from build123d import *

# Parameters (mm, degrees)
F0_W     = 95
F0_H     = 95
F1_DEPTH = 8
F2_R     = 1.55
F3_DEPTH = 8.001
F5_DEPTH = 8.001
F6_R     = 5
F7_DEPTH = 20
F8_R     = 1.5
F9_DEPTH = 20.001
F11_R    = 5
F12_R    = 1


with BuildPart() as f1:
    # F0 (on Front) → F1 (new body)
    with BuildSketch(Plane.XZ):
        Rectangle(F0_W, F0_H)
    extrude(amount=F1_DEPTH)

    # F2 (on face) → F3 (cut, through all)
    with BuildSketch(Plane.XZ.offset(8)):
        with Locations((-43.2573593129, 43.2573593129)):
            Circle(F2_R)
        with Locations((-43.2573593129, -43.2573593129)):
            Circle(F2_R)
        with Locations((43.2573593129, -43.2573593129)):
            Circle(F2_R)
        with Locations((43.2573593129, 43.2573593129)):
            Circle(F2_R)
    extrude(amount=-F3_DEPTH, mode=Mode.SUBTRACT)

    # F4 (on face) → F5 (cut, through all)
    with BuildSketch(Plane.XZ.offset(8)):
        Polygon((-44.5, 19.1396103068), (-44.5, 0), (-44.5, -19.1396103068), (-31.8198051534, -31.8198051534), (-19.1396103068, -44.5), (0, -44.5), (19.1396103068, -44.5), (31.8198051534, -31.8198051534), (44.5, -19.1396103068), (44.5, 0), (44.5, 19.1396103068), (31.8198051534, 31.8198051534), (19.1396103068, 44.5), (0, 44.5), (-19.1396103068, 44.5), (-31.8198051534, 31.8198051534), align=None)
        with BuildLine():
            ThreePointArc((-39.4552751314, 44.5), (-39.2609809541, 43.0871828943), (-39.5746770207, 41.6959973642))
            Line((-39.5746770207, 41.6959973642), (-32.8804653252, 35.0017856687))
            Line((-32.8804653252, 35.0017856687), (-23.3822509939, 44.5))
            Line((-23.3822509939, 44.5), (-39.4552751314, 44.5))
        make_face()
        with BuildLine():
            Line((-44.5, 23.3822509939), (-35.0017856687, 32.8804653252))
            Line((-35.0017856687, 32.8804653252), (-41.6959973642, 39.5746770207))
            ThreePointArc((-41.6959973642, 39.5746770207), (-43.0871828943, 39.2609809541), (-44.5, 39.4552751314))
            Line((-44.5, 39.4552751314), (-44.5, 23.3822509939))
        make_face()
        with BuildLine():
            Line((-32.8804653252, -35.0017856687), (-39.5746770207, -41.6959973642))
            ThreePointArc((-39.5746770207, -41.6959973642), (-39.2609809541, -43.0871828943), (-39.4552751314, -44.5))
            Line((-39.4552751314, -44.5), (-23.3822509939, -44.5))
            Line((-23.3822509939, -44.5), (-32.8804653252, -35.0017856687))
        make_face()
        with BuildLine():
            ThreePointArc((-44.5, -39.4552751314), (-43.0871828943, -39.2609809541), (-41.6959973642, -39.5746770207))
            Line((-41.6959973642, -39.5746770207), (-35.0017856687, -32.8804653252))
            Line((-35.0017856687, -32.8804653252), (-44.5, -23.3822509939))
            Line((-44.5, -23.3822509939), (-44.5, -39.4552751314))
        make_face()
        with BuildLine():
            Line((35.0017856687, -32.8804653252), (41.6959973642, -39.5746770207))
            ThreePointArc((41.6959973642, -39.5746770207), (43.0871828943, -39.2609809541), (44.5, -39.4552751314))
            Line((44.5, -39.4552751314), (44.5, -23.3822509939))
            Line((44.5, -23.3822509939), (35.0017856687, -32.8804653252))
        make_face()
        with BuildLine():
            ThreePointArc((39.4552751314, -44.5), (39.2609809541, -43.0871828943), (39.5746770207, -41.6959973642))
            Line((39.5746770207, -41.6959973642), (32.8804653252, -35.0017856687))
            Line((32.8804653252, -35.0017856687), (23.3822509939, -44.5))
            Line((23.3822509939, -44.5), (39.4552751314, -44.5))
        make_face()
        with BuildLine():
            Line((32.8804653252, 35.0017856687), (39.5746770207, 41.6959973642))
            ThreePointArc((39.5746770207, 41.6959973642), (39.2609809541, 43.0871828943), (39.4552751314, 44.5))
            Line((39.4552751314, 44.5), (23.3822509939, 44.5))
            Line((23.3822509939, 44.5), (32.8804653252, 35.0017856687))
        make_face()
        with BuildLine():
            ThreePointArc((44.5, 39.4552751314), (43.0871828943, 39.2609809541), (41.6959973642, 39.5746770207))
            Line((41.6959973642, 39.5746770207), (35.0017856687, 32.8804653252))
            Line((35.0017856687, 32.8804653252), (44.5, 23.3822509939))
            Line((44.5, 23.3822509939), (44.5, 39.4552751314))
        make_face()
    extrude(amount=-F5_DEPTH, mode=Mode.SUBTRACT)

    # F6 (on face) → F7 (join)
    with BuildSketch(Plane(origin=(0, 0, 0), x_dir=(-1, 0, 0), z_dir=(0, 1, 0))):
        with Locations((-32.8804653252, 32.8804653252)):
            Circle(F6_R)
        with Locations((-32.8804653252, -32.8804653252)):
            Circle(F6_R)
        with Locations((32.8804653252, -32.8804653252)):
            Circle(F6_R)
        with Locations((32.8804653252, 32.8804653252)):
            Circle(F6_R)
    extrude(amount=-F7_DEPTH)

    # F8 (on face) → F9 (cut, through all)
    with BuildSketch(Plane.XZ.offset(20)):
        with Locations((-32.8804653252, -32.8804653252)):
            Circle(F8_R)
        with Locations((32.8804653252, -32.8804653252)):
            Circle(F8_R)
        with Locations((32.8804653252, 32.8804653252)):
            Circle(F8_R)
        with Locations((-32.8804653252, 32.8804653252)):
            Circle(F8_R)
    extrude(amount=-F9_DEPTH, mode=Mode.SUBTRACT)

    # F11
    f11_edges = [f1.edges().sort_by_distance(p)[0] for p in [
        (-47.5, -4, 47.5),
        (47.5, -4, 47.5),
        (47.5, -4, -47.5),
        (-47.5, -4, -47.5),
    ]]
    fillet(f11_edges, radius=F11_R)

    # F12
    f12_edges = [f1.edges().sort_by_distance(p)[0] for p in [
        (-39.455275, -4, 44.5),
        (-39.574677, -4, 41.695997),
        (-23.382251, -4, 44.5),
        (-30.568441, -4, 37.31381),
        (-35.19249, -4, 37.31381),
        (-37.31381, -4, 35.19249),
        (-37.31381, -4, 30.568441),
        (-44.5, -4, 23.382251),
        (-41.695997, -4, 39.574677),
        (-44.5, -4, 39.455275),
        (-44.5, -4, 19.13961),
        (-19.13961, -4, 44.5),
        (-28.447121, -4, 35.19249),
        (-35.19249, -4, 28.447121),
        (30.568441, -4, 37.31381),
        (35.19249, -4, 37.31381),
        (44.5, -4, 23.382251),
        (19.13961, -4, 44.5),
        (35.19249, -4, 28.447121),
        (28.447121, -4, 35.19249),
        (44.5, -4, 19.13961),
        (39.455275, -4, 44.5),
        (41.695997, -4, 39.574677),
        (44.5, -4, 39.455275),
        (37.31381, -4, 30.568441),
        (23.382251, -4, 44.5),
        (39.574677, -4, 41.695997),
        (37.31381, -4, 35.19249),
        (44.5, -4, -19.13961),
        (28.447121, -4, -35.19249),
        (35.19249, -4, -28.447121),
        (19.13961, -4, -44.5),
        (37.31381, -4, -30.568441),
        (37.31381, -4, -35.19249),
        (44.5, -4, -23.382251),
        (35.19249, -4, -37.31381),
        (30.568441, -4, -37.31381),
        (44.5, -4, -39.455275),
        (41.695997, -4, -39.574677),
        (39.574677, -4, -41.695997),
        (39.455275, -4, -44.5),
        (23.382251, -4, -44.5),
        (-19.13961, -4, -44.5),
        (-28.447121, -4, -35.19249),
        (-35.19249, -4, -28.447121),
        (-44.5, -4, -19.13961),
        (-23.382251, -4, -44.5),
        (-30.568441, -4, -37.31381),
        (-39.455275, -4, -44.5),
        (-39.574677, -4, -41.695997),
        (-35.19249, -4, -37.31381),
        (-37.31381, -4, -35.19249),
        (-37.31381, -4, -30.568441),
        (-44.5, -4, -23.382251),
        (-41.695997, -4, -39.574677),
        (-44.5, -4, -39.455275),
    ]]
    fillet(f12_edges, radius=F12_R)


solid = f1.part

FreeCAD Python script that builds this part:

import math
import FreeCAD as App
import Part
import Sketcher

V = App.Vector
Q = App.Units.Quantity


def edges_at(feature, points):
    """Names of the edges that pass closest to the given points."""
    edges = feature.Shape.Edges
    near = lambda p: min(range(len(edges)), key=lambda i: edges[i].distToShape(Part.Vertex(*p))[0])
    return sorted({f"Edge{near(p) + 1}" for p in points})

doc = App.newDocument("Part")
body = doc.addObject("PartDesign::Body", "Body")

# Sketch on XZ plane
sketch1 = doc.addObject("Sketcher::SketchObject", "Sketch")
body.addObject(sketch1)
sketch1.AttachmentSupport = (doc.XZ_Plane, [""])
sketch1.MapMode = "FlatFace"
sketch1.addGeometry(Part.LineSegment(V(-48, 48, 0), V(-48, -48, 0)), False)
sketch1.addGeometry(Part.LineSegment(V(-48, -48, 0), V(48, -48, 0)), False)
sketch1.addGeometry(Part.LineSegment(V(48, -48, 0), V(48, 48, 0)), False)
sketch1.addGeometry(Part.LineSegment(V(48, 48, 0), V(-48, 48, 0)), False)
sketch1.addConstraint(Sketcher.Constraint("Coincident", 0, 2, 1, 1))
sketch1.addConstraint(Sketcher.Constraint("Coincident", 1, 2, 2, 1))
sketch1.addConstraint(Sketcher.Constraint("Coincident", 2, 2, 3, 1))
sketch1.addConstraint(Sketcher.Constraint("Coincident", 3, 2, 0, 1))
sketch1.addConstraint(Sketcher.Constraint("Vertical", 0))
sketch1.addConstraint(Sketcher.Constraint("Horizontal", 1))
sketch1.addConstraint(Sketcher.Constraint("Vertical", 2))
sketch1.addConstraint(Sketcher.Constraint("Horizontal", 3))
sketch1.addConstraint(Sketcher.Constraint("Symmetric", 0, 2, 2, 2, -1, 1))
sketch1.addConstraint(Sketcher.Constraint("Equal", 3, 0))
sketch1.addConstraint(Sketcher.Constraint("DistanceX", 1, 1, 1, 2, Q("95 mm")))
pad1 = doc.addObject("PartDesign::Pad", "Pad")
body.addObject(pad1)
pad1.Profile = sketch1
pad1.Length = 8

# Sketch on XZ plane
sketch2 = doc.addObject("Sketcher::SketchObject", "Sketch001")
body.addObject(sketch2)
sketch2.AttachmentSupport = (doc.XZ_Plane, [""])
sketch2.MapMode = "FlatFace"
sketch2.AttachmentOffset = App.Placement(V(0, 0, 8), App.Rotation())
sketch2.addGeometry(Part.Circle(V(-43.3, 43.3, 0), V(0, 0, 1), 1.6), False)
sketch2.addGeometry(Part.Circle(V(-43.3, -43.3, 0), V(0, 0, 1), 1.6), False)
sketch2.addGeometry(Part.Circle(V(43.3, -43.3, 0), V(0, 0, 1), 1.6), False)
sketch2.addGeometry(Part.Circle(V(43.3, 43.3, 0), V(0, 0, 1), 1.6), False)
sketch2.addConstraint(Sketcher.Constraint("Equal", 0, 1))
sketch2.addConstraint(Sketcher.Constraint("Equal", 1, 2))
sketch2.addConstraint(Sketcher.Constraint("Equal", 2, 3))
sketch2.addConstraint(Sketcher.Constraint("Symmetric", 0, 3, 2, 3, -1, 1))
sketch2.addConstraint(Sketcher.Constraint("Symmetric", 1, 3, 3, 3, -1, 1))
sketch2.addConstraint(Sketcher.Constraint("Symmetric", 1, 3, 2, 3, -2))
sketch2.addConstraint(Sketcher.Constraint("Diameter", 0, Q("3.1 mm")))
sketch2.addConstraint(Sketcher.Constraint("DistanceX", 0, 3, -1, 1, Q("43.257359 mm")))
sketch2.addConstraint(Sketcher.Constraint("DistanceY", -1, 1, 0, 3, Q("43.257359 mm")))
pocket1 = doc.addObject("PartDesign::Pocket", "Pocket")
body.addObject(pocket1)
pocket1.Profile = sketch2
pocket1.Type = "ThroughAll"

# Sketch on XZ plane
sketch3 = doc.addObject("Sketcher::SketchObject", "Sketch002")
body.addObject(sketch3)
sketch3.AttachmentSupport = (doc.XZ_Plane, [""])
sketch3.MapMode = "FlatFace"
sketch3.AttachmentOffset = App.Placement(V(0, 0, 8), App.Rotation())
sketch3.addGeometry(Part.LineSegment(V(-44.5, 19.1, 0), V(-44.5, -19.1, 0)), False)
sketch3.addGeometry(Part.LineSegment(V(-44.5, -19.1, 0), V(-19.1, -44.5, 0)), False)
sketch3.addGeometry(Part.LineSegment(V(-19.1, -44.5, 0), V(19.1, -44.5, 0)), False)
sketch3.addGeometry(Part.LineSegment(V(19.1, -44.5, 0), V(44.5, -19.1, 0)), False)
sketch3.addGeometry(Part.LineSegment(V(44.5, -19.1, 0), V(44.5, 19.1, 0)), False)
sketch3.addGeometry(Part.LineSegment(V(44.5, 19.1, 0), V(19.1, 44.5, 0)), False)
sketch3.addGeometry(Part.LineSegment(V(19.1, 44.5, 0), V(-19.1, 44.5, 0)), False)
sketch3.addGeometry(Part.LineSegment(V(-19.1, 44.5, 0), V(-44.5, 19.1, 0)), False)
sketch3.addGeometry(Part.ArcOfCircle(Part.Circle(V(-43.3, 43.3, 0), V(0, 0, 1), 4), math.radians(-23), math.radians(18)), False)
sketch3.addGeometry(Part.LineSegment(V(-39.6, 41.7, 0), V(-32.9, 35, 0)), False)
sketch3.addGeometry(Part.LineSegment(V(-32.9, 35, 0), V(-23.4, 44.5, 0)), False)
sketch3.addGeometry(Part.LineSegment(V(-23.4, 44.5, 0), V(-39.5, 44.5, 0)), False)
sketch3.addGeometry(Part.LineSegment(V(-44.5, 23.4, 0), V(-35, 32.9, 0)), False)
sketch3.addGeometry(Part.LineSegment(V(-35, 32.9, 0), V(-41.7, 39.6, 0)), False)
sketch3.addGeometry(Part.ArcOfCircle(Part.Circle(V(-43.3, 43.3, 0), V(0, 0, 1), 4), math.radians(-108), math.radians(-67)), False)
sketch3.addGeometry(Part.LineSegment(V(-44.5, 39.5, 0), V(-44.5, 23.4, 0)), False)
sketch3.addGeometry(Part.LineSegment(V(-32.9, -35, 0), V(-39.6, -41.7, 0)), False)
sketch3.addGeometry(Part.ArcOfCircle(Part.Circle(V(-43.3, -43.3, 0), V(0, 0, 1), 4), math.radians(-18), math.radians(23)), False)
sketch3.addGeometry(Part.LineSegment(V(-39.5, -44.5, 0), V(-23.4, -44.5, 0)), False)
sketch3.addGeometry(Part.LineSegment(V(-23.4, -44.5, 0), V(-32.9, -35, 0)), False)
sketch3.addGeometry(Part.ArcOfCircle(Part.Circle(V(-43.3, -43.3, 0), V(0, 0, 1), 4), math.radians(67), math.radians(108)), False)
sketch3.addGeometry(Part.LineSegment(V(-41.7, -39.6, 0), V(-35, -32.9, 0)), False)
sketch3.addGeometry(Part.LineSegment(V(-35, -32.9, 0), V(-44.5, -23.4, 0)), False)
sketch3.addGeometry(Part.LineSegment(V(-44.5, -23.4, 0), V(-44.5, -39.5, 0)), False)
sketch3.addGeometry(Part.LineSegment(V(35, -32.9, 0), V(41.7, -39.6, 0)), False)
sketch3.addGeometry(Part.ArcOfCircle(Part.Circle(V(43.3, -43.3, 0), V(0, 0, 1), 4), math.radians(72), math.radians(113)), False)
sketch3.addGeometry(Part.LineSegment(V(44.5, -39.5, 0), V(44.5, -23.4, 0)), False)
sketch3.addGeometry(Part.LineSegment(V(44.5, -23.4, 0), V(35, -32.9, 0)), False)
sketch3.addGeometry(Part.ArcOfCircle(Part.Circle(V(43.3, -43.3, 0), V(0, 0, 1), 4), math.radians(157), math.radians(198)), False)
sketch3.addGeometry(Part.LineSegment(V(39.6, -41.7, 0), V(32.9, -35, 0)), False)
sketch3.addGeometry(Part.LineSegment(V(32.9, -35, 0), V(23.4, -44.5, 0)), False)
sketch3.addGeometry(Part.LineSegment(V(23.4, -44.5, 0), V(39.5, -44.5, 0)), False)
sketch3.addGeometry(Part.LineSegment(V(32.9, 35, 0), V(39.6, 41.7, 0)), False)
sketch3.addGeometry(Part.ArcOfCircle(Part.Circle(V(43.3, 43.3, 0), V(0, 0, 1), 4), math.radians(162), math.radians(203)), False)
sketch3.addGeometry(Part.LineSegment(V(39.5, 44.5, 0), V(23.4, 44.5, 0)), False)
sketch3.addGeometry(Part.LineSegment(V(23.4, 44.5, 0), V(32.9, 35, 0)), False)
sketch3.addGeometry(Part.ArcOfCircle(Part.Circle(V(43.3, 43.3, 0), V(0, 0, 1), 4), math.radians(-113), math.radians(-72)), False)
sketch3.addGeometry(Part.LineSegment(V(41.7, 39.6, 0), V(35, 32.9, 0)), False)
sketch3.addGeometry(Part.LineSegment(V(35, 32.9, 0), V(44.5, 23.4, 0)), False)
sketch3.addGeometry(Part.LineSegment(V(44.5, 23.4, 0), V(44.5, 39.5, 0)), False)
sketch3.addConstraint(Sketcher.Constraint("Coincident", 0, 2, 1, 1))
sketch3.addConstraint(Sketcher.Constraint("Coincident", 1, 2, 2, 1))
sketch3.addConstraint(Sketcher.Constraint("Coincident", 2, 2, 3, 1))
sketch3.addConstraint(Sketcher.Constraint("Coincident", 3, 2, 4, 1))
sketch3.addConstraint(Sketcher.Constraint("Coincident", 4, 2, 5, 1))
sketch3.addConstraint(Sketcher.Constraint("Coincident", 5, 2, 6, 1))
sketch3.addConstraint(Sketcher.Constraint("Coincident", 6, 2, 7, 1))
sketch3.addConstraint(Sketcher.Constraint("Coincident", 7, 2, 0, 1))
sketch3.addConstraint(Sketcher.Constraint("Coincident", 8, 1, 9, 1))
sketch3.addConstraint(Sketcher.Constraint("Coincident", 9, 2, 10, 1))
sketch3.addConstraint(Sketcher.Constraint("Coincident", 10, 2, 11, 1))
sketch3.addConstraint(Sketcher.Constraint("Coincident", 11, 2, 8, 2))
sketch3.addConstraint(Sketcher.Constraint("Coincident", 12, 2, 13, 1))
sketch3.addConstraint(Sketcher.Constraint("Coincident", 13, 2, 14, 2))
sketch3.addConstraint(Sketcher.Constraint("Coincident", 14, 1, 15, 1))
sketch3.addConstraint(Sketcher.Constraint("Coincident", 15, 2, 12, 1))
sketch3.addConstraint(Sketcher.Constraint("Coincident", 16, 2, 17, 2))
sketch3.addConstraint(Sketcher.Constraint("Coincident", 17, 1, 18, 1))
sketch3.addConstraint(Sketcher.Constraint("Coincident", 18, 2, 19, 1))
sketch3.addConstraint(Sketcher.Constraint("Coincident", 19, 2, 16, 1))
sketch3.addConstraint(Sketcher.Constraint("Coincident", 20, 1, 21, 1))
sketch3.addConstraint(Sketcher.Constraint("Coincident", 21, 2, 22, 1))
sketch3.addConstraint(Sketcher.Constraint("Coincident", 22, 2, 23, 1))
sketch3.addConstraint(Sketcher.Constraint("Coincident", 23, 2, 20, 2))
sketch3.addConstraint(Sketcher.Constraint("Coincident", 24, 2, 25, 2))
sketch3.addConstraint(Sketcher.Constraint("Coincident", 25, 1, 26, 1))
sketch3.addConstraint(Sketcher.Constraint("Coincident", 26, 2, 27, 1))
sketch3.addConstraint(Sketcher.Constraint("Coincident", 27, 2, 24, 1))
sketch3.addConstraint(Sketcher.Constraint("Coincident", 28, 1, 29, 1))
sketch3.addConstraint(Sketcher.Constraint("Coincident", 29, 2, 30, 1))
sketch3.addConstraint(Sketcher.Constraint("Coincident", 30, 2, 31, 1))
sketch3.addConstraint(Sketcher.Constraint("Coincident", 31, 2, 28, 2))
sketch3.addConstraint(Sketcher.Constraint("Coincident", 32, 2, 33, 2))
sketch3.addConstraint(Sketcher.Constraint("Coincident", 33, 1, 34, 1))
sketch3.addConstraint(Sketcher.Constraint("Coincident", 34, 2, 35, 1))
sketch3.addConstraint(Sketcher.Constraint("Coincident", 35, 2, 32, 1))
sketch3.addConstraint(Sketcher.Constraint("Coincident", 36, 1, 37, 1))
sketch3.addConstraint(Sketcher.Constraint("Coincident", 37, 2, 38, 1))
sketch3.addConstraint(Sketcher.Constraint("Coincident", 38, 2, 39, 1))
sketch3.addConstraint(Sketcher.Constraint("Coincident", 39, 2, 36, 2))
sketch3.addConstraint(Sketcher.Constraint("Vertical", 0))
sketch3.addConstraint(Sketcher.Constraint("Horizontal", 2))
sketch3.addConstraint(Sketcher.Constraint("Vertical", 4))
sketch3.addConstraint(Sketcher.Constraint("Horizontal", 6))
sketch3.addConstraint(Sketcher.Constraint("Horizontal", 11))
sketch3.addConstraint(Sketcher.Constraint("Vertical", 15))
sketch3.addConstraint(Sketcher.Constraint("Horizontal", 18))
sketch3.addConstraint(Sketcher.Constraint("Vertical", 23))
sketch3.addConstraint(Sketcher.Constraint("Vertical", 26))
sketch3.addConstraint(Sketcher.Constraint("Horizontal", 31))
sketch3.addConstraint(Sketcher.Constraint("Horizontal", 34))
sketch3.addConstraint(Sketcher.Constraint("Vertical", 39))
sketch3.addConstraint(Sketcher.Constraint("Coincident", 14, 3, 8, 3))
sketch3.addConstraint(Sketcher.Constraint("Coincident", 20, 3, 17, 3))
sketch3.addConstraint(Sketcher.Constraint("Coincident", 28, 3, 25, 3))
sketch3.addConstraint(Sketcher.Constraint("Coincident", 36, 3, 33, 3))
sketch3.addConstraint(Sketcher.Constraint("Equal", 8, 14))
sketch3.addConstraint(Sketcher.Constraint("Equal", 14, 17))
sketch3.addConstraint(Sketcher.Constraint("Equal", 17, 20))
sketch3.addConstraint(Sketcher.Constraint("Equal", 20, 25))
sketch3.addConstraint(Sketcher.Constraint("Equal", 25, 28))
sketch3.addConstraint(Sketcher.Constraint("Equal", 28, 33))
sketch3.addConstraint(Sketcher.Constraint("Equal", 33, 36))
sketch3.addConstraint(Sketcher.Constraint("Symmetric", 8, 3, 25, 3, -1, 1))
sketch3.addConstraint(Sketcher.Constraint("Symmetric", 17, 3, 33, 3, -1, 1))
sketch3.addConstraint(Sketcher.Constraint("Symmetric", 0, 2, 4, 2, -1, 1))
sketch3.addConstraint(Sketcher.Constraint("Symmetric", 1, 2, 5, 2, -1, 1))
sketch3.addConstraint(Sketcher.Constraint("Symmetric", 15, 2, 26, 2, -1, 1))
sketch3.addConstraint(Sketcher.Constraint("Symmetric", 12, 2, 27, 2, -1, 1))
sketch3.addConstraint(Sketcher.Constraint("Symmetric", 9, 2, 29, 2, -1, 1))
sketch3.addConstraint(Sketcher.Constraint("Symmetric", 10, 2, 30, 2, -1, 1))
sketch3.addConstraint(Sketcher.Constraint("Symmetric", 18, 2, 34, 2, -1, 1))
sketch3.addConstraint(Sketcher.Constraint("Symmetric", 19, 2, 35, 2, -1, 1))
sketch3.addConstraint(Sketcher.Constraint("Symmetric", 21, 2, 37, 2, -1, 1))
sketch3.addConstraint(Sketcher.Constraint("Symmetric", 22, 2, 38, 2, -1, 1))
sketch3.addConstraint(Sketcher.Constraint("Symmetric", 17, 3, 25, 3, -2))
sketch3.addConstraint(Sketcher.Constraint("Symmetric", 22, 2, 26, 2, -2))
sketch3.addConstraint(Sketcher.Constraint("Symmetric", 21, 2, 27, 2, -2))
sketch3.addConstraint(Sketcher.Constraint("Symmetric", 19, 2, 29, 2, -2))
sketch3.addConstraint(Sketcher.Constraint("Symmetric", 18, 2, 30, 2, -2))
sketch3.addConstraint(Sketcher.Constraint("Perpendicular", 1, 3))
sketch3.addConstraint(Sketcher.Constraint("Perpendicular", 5, 7))
sketch3.addConstraint(Sketcher.Constraint("Perpendicular", 7, 9))
sketch3.addConstraint(Sketcher.Constraint("Perpendicular", 9, 10))
sketch3.addConstraint(Sketcher.Constraint("Parallel", 10, 12))
sketch3.addConstraint(Sketcher.Constraint("Perpendicular", 12, 13))
sketch3.addConstraint(Sketcher.Constraint("Perpendicular", 13, 16))
sketch3.addConstraint(Sketcher.Constraint("Perpendicular", 16, 19))
sketch3.addConstraint(Sketcher.Constraint("Perpendicular", 19, 21))
sketch3.addConstraint(Sketcher.Constraint("Parallel", 22, 24))
sketch3.addConstraint(Sketcher.Constraint("Perpendicular", 27, 29))
sketch3.addConstraint(Sketcher.Constraint("Parallel", 30, 32))
sketch3.addConstraint(Sketcher.Constraint("Perpendicular", 35, 37))
sketch3.addConstraint(Sketcher.Constraint("Horizontal", 0, 2, 3, 2))
sketch3.addConstraint(Sketcher.Constraint("Horizontal", 4, 2, 7, 2))
sketch3.addConstraint(Sketcher.Constraint("Horizontal", 6, 2, 10, 2))
sketch3.addConstraint(Sketcher.Constraint("Vertical", 7, 2, 14, 1))
sketch3.addConstraint(Sketcher.Constraint("Equal", 6, 0))
sketch3.addConstraint(Sketcher.Constraint("Equal", 34, 15))
sketch3.addConstraint(Sketcher.Constraint("Equal", 10, 12))
sketch3.addConstraint(Sketcher.Constraint("Equal", 9, 13))
sketch3.addConstraint(Sketcher.Constraint("Radius", 8, Q("4 mm")))
sketch3.addConstraint(Sketcher.Constraint("DistanceX", 0, 2, -1, 1, Q("44.5 mm")))
sketch3.addConstraint(Sketcher.Constraint("DistanceX", 2, 1, 2, 2, Q("38.279221 mm")))
sketch3.addConstraint(Sketcher.Constraint("DistanceX", 8, 1, 11, 2, Q("0.119402 mm")))
sketch3.addConstraint(Sketcher.Constraint("DistanceX", 11, 2, 11, 1, Q("16.073024 mm")))
sketch3.addConstraint(Sketcher.Constraint("DistanceX", 8, 3, -1, 1, Q("43.257359 mm")))
pocket2 = doc.addObject("PartDesign::Pocket", "Pocket001")
body.addObject(pocket2)
pocket2.Profile = sketch3
pocket2.Type = "ThroughAll"

# Sketch on XZ plane
sketch4 = doc.addObject("Sketcher::SketchObject", "Sketch003")
body.addObject(sketch4)
sketch4.AttachmentSupport = (doc.XZ_Plane, [""])
sketch4.MapMode = "FlatFace"
sketch4.addGeometry(Part.Circle(V(33, 33, 0), V(0, 0, 1), 5), False)
sketch4.addGeometry(Part.Circle(V(33, -33, 0), V(0, 0, 1), 5), False)
sketch4.addGeometry(Part.Circle(V(-33, -33, 0), V(0, 0, 1), 5), False)
sketch4.addGeometry(Part.Circle(V(-33, 33, 0), V(0, 0, 1), 5), False)
sketch4.addConstraint(Sketcher.Constraint("Equal", 0, 1))
sketch4.addConstraint(Sketcher.Constraint("Equal", 1, 2))
sketch4.addConstraint(Sketcher.Constraint("Equal", 2, 3))
sketch4.addConstraint(Sketcher.Constraint("Symmetric", 0, 3, 2, 3, -1, 1))
sketch4.addConstraint(Sketcher.Constraint("Symmetric", 1, 3, 3, 3, -1, 1))
sketch4.addConstraint(Sketcher.Constraint("Symmetric", 1, 3, 2, 3, -2))
sketch4.addConstraint(Sketcher.Constraint("Diameter", 0, Q("10 mm")))
sketch4.addConstraint(Sketcher.Constraint("DistanceY", 1, 3, 0, 3, Q("65.760931 mm")))
sketch4.addConstraint(Sketcher.Constraint("DistanceX", 2, 3, 1, 3, Q("65.760931 mm")))
pad2 = doc.addObject("PartDesign::Pad", "Pad001")
body.addObject(pad2)
pad2.Profile = sketch4
pad2.Length = 20

# Sketch on XZ plane
sketch5 = doc.addObject("Sketcher::SketchObject", "Sketch004")
body.addObject(sketch5)
sketch5.AttachmentSupport = (doc.XZ_Plane, [""])
sketch5.MapMode = "FlatFace"
sketch5.AttachmentOffset = App.Placement(V(0, 0, 20), App.Rotation())
sketch5.addGeometry(Part.Circle(V(-32.9, -32.9, 0), V(0, 0, 1), 1.5), False)
sketch5.addGeometry(Part.Circle(V(32.9, -32.9, 0), V(0, 0, 1), 1.5), False)
sketch5.addGeometry(Part.Circle(V(32.9, 32.9, 0), V(0, 0, 1), 1.5), False)
sketch5.addGeometry(Part.Circle(V(-32.9, 32.9, 0), V(0, 0, 1), 1.5), False)
sketch5.addConstraint(Sketcher.Constraint("Equal", 0, 1))
sketch5.addConstraint(Sketcher.Constraint("Equal", 1, 2))
sketch5.addConstraint(Sketcher.Constraint("Equal", 2, 3))
sketch5.addConstraint(Sketcher.Constraint("Symmetric", 0, 3, 2, 3, -1, 1))
sketch5.addConstraint(Sketcher.Constraint("Symmetric", 1, 3, 3, 3, -1, 1))
sketch5.addConstraint(Sketcher.Constraint("Symmetric", 0, 3, 1, 3, -2))
sketch5.addConstraint(Sketcher.Constraint("Diameter", 0, Q("3 mm")))
sketch5.addConstraint(Sketcher.Constraint("DistanceX", 0, 3, 1, 3, Q("65.760931 mm")))
sketch5.addConstraint(Sketcher.Constraint("DistanceY", 1, 3, 2, 3, Q("65.760931 mm")))
pocket3 = doc.addObject("PartDesign::Pocket", "Pocket002")
body.addObject(pocket3)
pocket3.Profile = sketch5
pocket3.Type = "ThroughAll"
doc.recompute()

fillet = doc.addObject("PartDesign::Fillet", "Fillet")
body.addObject(fillet)
fillet.Base = (pocket3, edges_at(pocket3, [
    (-47.5, -4, 47.5),
    (47.5, -4, 47.5),
    (47.5, -4, -47.5),
    (-47.5, -4, -47.5),
]))
fillet.Radius = 5
doc.recompute()

fillet2 = doc.addObject("PartDesign::Fillet", "Fillet001")
body.addObject(fillet2)
fillet2.Base = (fillet, edges_at(fillet, [
    (-39.455, -4, 44.5),
    (-39.575, -4, 41.696),
    (-23.382, -4, 44.5),
    (-30.568, -4, 37.314),
    (-35.192, -4, 37.314),
    (-37.314, -4, 35.192),
    (-37.314, -4, 30.568),
    (-44.5, -4, 23.382),
    (-41.696, -4, 39.575),
    (-44.5, -4, 39.455),
    (-44.5, -4, 19.14),
    (-19.14, -4, 44.5),
    (-28.447, -4, 35.192),
    (-35.192, -4, 28.447),
    (30.568, -4, 37.314),
    (35.192, -4, 37.314),
    (44.5, -4, 23.382),
    (19.14, -4, 44.5),
    (35.192, -4, 28.447),
    (28.447, -4, 35.192),
    (44.5, -4, 19.14),
    (39.455, -4, 44.5),
    (41.696, -4, 39.575),
    (44.5, -4, 39.455),
    (37.314, -4, 30.568),
    (23.382, -4, 44.5),
    (39.575, -4, 41.696),
    (37.314, -4, 35.192),
    (44.5, -4, -19.14),
    (28.447, -4, -35.192),
    (35.192, -4, -28.447),
    (19.14, -4, -44.5),
    (37.314, -4, -30.568),
    (37.314, -4, -35.192),
    (44.5, -4, -23.382),
    (35.192, -4, -37.314),
    (30.568, -4, -37.314),
    (44.5, -4, -39.455),
    (41.696, -4, -39.575),
    (39.575, -4, -41.696),
    (39.455, -4, -44.5),
    (23.382, -4, -44.5),
    (-19.14, -4, -44.5),
    (-28.447, -4, -35.192),
    (-35.192, -4, -28.447),
    (-44.5, -4, -19.14),
    (-23.382, -4, -44.5),
    (-30.568, -4, -37.314),
    (-39.455, -4, -44.5),
    (-39.575, -4, -41.696),
    (-35.192, -4, -37.314),
    (-37.314, -4, -35.192),
    (-37.314, -4, -30.568),
    (-44.5, -4, -23.382),
    (-41.696, -4, -39.575),
    (-44.5, -4, -39.455),
]))
fillet2.Radius = 1

doc.recompute()
